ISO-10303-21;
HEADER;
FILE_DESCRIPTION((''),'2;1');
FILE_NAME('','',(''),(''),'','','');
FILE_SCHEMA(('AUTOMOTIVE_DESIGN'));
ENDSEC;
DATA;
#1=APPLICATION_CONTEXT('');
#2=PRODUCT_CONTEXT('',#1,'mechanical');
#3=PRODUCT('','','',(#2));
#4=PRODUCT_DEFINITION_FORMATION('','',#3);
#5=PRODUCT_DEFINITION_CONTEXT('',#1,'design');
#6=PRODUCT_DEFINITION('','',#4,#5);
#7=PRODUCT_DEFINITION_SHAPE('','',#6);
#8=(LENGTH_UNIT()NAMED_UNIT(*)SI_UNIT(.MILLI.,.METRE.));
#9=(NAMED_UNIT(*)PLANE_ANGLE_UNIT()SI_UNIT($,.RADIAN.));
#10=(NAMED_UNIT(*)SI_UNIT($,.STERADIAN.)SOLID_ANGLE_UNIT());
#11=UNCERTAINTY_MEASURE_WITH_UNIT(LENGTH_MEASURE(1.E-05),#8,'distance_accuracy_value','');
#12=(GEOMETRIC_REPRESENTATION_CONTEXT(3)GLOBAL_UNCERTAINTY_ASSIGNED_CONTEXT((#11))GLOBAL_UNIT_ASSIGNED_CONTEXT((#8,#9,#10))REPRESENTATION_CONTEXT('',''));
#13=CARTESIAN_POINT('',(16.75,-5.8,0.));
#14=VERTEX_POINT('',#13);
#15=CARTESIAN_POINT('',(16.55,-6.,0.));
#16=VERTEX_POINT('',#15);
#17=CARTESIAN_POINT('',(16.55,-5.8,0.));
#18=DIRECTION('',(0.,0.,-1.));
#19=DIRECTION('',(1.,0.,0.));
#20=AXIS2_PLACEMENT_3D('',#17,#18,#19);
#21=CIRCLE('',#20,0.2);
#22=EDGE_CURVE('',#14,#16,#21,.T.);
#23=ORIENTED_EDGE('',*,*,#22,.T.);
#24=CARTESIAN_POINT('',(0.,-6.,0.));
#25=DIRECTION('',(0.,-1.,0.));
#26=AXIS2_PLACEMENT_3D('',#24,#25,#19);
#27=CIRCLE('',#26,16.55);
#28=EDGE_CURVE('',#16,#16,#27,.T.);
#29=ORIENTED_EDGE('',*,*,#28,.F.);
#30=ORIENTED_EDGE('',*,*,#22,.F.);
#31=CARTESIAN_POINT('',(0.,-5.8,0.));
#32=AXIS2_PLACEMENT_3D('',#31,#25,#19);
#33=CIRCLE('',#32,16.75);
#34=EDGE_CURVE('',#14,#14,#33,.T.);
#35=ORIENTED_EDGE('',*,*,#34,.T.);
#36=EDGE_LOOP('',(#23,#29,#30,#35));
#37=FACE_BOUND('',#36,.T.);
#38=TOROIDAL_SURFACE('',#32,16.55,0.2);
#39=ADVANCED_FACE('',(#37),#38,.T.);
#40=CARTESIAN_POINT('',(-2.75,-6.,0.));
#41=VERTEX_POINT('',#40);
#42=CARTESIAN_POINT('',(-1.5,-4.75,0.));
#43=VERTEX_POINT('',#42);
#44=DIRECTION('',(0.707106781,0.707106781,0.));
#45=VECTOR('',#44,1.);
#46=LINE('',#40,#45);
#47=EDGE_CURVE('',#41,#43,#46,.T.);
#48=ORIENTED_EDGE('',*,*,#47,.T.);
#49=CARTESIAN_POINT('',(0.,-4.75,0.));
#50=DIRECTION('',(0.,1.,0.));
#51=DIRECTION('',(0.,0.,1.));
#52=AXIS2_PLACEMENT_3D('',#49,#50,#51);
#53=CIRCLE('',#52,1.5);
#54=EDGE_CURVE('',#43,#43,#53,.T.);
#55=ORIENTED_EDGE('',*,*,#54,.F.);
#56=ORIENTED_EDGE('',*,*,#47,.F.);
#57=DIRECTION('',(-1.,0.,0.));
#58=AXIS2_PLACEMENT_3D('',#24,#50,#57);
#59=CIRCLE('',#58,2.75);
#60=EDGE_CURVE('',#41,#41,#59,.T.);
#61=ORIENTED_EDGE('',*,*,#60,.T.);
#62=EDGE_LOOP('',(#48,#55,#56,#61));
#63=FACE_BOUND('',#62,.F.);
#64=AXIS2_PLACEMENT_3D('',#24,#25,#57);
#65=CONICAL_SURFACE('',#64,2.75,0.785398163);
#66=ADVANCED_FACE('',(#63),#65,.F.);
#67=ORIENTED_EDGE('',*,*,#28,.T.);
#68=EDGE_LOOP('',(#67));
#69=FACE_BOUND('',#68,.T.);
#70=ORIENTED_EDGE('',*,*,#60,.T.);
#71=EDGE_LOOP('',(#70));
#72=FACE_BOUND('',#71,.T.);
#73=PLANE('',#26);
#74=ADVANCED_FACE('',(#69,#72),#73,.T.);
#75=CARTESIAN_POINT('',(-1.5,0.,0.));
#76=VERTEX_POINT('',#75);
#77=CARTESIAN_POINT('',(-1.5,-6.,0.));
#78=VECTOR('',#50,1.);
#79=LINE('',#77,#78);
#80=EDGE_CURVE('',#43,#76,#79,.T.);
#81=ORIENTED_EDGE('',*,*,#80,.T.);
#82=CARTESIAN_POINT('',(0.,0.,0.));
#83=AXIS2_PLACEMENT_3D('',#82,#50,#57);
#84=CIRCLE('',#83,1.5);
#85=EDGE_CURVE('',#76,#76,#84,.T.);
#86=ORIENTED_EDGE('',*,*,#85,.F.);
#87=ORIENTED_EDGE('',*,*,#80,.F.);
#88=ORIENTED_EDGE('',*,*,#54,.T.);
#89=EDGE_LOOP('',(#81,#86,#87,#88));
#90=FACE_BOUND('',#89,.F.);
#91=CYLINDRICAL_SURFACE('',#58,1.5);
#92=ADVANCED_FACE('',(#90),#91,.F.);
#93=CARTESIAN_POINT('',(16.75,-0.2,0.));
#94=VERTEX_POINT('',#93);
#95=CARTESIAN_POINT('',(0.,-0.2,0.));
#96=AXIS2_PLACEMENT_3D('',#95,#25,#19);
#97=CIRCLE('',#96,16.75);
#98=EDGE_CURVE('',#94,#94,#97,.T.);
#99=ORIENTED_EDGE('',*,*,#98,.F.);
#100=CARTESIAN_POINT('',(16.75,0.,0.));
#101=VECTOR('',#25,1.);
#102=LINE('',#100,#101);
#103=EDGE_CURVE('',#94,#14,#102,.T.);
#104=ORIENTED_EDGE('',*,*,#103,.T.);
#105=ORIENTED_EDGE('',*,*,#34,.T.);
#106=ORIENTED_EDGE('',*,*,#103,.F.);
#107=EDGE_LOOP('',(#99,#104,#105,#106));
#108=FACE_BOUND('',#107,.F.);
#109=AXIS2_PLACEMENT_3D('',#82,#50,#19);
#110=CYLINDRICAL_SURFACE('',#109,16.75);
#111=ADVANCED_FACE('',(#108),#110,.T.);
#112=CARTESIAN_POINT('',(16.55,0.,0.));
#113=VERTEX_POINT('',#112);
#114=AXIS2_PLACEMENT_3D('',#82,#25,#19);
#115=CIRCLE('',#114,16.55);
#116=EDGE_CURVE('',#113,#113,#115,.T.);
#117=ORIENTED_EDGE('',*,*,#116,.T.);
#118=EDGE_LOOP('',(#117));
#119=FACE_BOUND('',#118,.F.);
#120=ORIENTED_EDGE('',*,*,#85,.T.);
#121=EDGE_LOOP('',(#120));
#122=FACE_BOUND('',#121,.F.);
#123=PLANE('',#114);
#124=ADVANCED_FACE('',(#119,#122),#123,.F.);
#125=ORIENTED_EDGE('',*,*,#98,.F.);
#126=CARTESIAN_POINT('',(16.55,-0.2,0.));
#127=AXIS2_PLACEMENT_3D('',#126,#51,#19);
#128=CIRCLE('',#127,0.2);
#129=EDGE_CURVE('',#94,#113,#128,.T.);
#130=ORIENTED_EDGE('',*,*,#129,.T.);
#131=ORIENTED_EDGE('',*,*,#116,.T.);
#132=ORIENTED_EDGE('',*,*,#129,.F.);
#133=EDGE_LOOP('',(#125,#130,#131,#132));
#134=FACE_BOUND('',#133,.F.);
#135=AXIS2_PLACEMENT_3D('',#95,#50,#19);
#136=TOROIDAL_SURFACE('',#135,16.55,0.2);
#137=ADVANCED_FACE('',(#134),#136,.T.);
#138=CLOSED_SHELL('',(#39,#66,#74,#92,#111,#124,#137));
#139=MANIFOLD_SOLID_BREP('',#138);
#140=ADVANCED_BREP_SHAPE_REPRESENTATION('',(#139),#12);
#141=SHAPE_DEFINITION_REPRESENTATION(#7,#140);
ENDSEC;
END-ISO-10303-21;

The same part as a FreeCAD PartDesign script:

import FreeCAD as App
import Part
import Sketcher
from FreeCAD import Vector
Q = App.Units.Quantity


def edges_at(feature, points):
    """Names of the edges that pass closest to the given points."""
    edges = feature.Shape.Edges
    near = lambda p: min(range(len(edges)), key=lambda i: edges[i].distToShape(Part.Vertex(*p))[0])
    return sorted({f"Edge{near(p) + 1}" for p in points})

doc = App.newDocument("Part")
body = doc.addObject("PartDesign::Body", "Body")

# Sketch on XZ plane
sketch1 = body.newObject("Sketcher::SketchObject", "Sketch")
sketch1.AttachmentSupport = (doc.getObject("XZ_Plane"), [""])
sketch1.MapMode = "FlatFace"
sketch1.addGeometry(Part.Circle(Vector(0, 0, 0), Vector(0, 0, 1), 17), False)
sketch1.addConstraint(Sketcher.Constraint("Coincident", 0, 3, -1, 1))
sketch1.addConstraint(Sketcher.Constraint("Diameter", 0, Q("33.5 mm")))
pad1 = body.newObject("PartDesign::Pad", "Pad")
pad1.Profile = sketch1
pad1.Length = 6

# Sketch on XZ plane
sketch2 = body.newObject("Sketcher::SketchObject", "Sketch001")
sketch2.AttachmentSupport = (doc.getObject("XZ_Plane"), [""])
sketch2.MapMode = "FlatFace"
sketch2.AttachmentOffset = App.Placement(Vector(0, 0, 6), App.Rotation())
sketch2.addGeometry(Part.Circle(Vector(0, 0, 0), Vector(0, 0, 1), 1.5), False)
sketch2.addConstraint(Sketcher.Constraint("Coincident", 0, 3, -1, 1))
sketch2.addConstraint(Sketcher.Constraint("Diameter", 0, Q("3 mm")))
doc.recompute()
hole = body.newObject("PartDesign::Hole", "Hole")
hole.Profile = sketch2
hole.ThreadType = "None"
hole.Diameter = 3
hole.DepthType = "ThroughAll"
hole.HoleCutType = "Countersink"
hole.HoleCutDiameter = 5.5
hole.HoleCutCountersinkAngle = 90
doc.recompute()

fillet = body.newObject("PartDesign::Fillet", "Fillet")
fillet.Base = (hole, edges_at(hole, [(-16.75, -6, 0), (-16.75, 0, 0)]))
fillet.Radius = 0.2

doc.recompute()
